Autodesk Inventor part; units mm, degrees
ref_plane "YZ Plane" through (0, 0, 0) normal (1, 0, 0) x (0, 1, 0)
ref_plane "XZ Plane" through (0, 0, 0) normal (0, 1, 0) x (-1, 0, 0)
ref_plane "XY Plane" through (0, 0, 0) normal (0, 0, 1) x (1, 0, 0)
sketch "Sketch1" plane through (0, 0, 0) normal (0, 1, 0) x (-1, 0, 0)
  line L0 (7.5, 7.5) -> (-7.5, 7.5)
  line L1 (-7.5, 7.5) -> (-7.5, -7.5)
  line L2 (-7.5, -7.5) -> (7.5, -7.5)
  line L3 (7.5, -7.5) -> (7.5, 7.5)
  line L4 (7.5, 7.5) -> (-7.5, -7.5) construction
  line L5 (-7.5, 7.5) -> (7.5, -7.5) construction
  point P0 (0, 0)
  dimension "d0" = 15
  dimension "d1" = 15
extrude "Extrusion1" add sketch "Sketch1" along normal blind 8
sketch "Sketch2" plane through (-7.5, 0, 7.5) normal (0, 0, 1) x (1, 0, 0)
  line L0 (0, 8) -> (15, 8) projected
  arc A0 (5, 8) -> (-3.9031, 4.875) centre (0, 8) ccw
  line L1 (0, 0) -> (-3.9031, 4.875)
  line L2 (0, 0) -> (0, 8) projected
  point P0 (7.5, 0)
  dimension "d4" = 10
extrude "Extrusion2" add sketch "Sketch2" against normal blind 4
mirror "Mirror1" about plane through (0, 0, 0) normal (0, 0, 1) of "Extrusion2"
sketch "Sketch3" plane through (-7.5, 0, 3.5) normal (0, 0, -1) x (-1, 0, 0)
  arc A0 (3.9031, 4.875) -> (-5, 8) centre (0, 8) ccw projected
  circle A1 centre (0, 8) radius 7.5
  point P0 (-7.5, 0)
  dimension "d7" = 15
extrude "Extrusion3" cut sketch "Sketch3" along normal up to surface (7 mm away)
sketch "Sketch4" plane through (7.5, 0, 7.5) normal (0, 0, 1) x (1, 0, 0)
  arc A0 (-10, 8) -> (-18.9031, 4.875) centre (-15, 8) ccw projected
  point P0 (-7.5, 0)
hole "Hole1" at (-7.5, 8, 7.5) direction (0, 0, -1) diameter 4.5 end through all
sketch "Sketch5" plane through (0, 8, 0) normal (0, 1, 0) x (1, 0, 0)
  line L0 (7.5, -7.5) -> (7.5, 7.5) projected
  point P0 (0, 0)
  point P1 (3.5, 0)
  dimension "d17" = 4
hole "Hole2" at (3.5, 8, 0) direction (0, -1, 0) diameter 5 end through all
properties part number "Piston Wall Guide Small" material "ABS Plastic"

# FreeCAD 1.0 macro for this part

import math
import FreeCAD as App
import Part
import Sketcher
Q = App.Units.Quantity


def add_polygon(sketch, points):
    """Adds a closed chain of lines whose ends are joined by coincident constraints."""
    first, n = sketch.GeometryCount, len(points)
    for a, b in zip(points, points[1:] + points[:1]):
        sketch.addGeometry(Part.LineSegment(App.Vector(*a, 0), App.Vector(*b, 0)), False)
    for i in range(n):
        sketch.addConstraint(Sketcher.Constraint("Coincident", first + i, 2, first + (i + 1) % n, 1))

doc = App.newDocument("Part")
body = doc.addObject("PartDesign::Body", "Body")

# Sketch on XZ plane
sketch1 = body.newObject("Sketcher::SketchObject", "Sketch")
sketch1.AttachmentSupport = (doc.getObject("XZ_Plane"), [""])
sketch1.MapMode = "FlatFace"
add_polygon(sketch1, [(-8, -8), (-8, 8), (8, 8), (8, -8)])  # lines 0-3
sketch1.addConstraint(Sketcher.Constraint("Vertical", 0))
sketch1.addConstraint(Sketcher.Constraint("Horizontal", 1))
sketch1.addConstraint(Sketcher.Constraint("Vertical", 2))
sketch1.addConstraint(Sketcher.Constraint("Horizontal", 3))
sketch1.addConstraint(Sketcher.Constraint("Symmetric", 0, 2, 2, 2, -1, 1))
sketch1.addConstraint(Sketcher.Constraint("Equal", 3, 0))
sketch1.addConstraint(Sketcher.Constraint("DistanceX", 1, 1, 1, 2, Q("15 mm")))
pad1 = body.newObject("PartDesign::Pad", "Pad")
pad1.Profile = sketch1
pad1.Length = 8
pad1.Reversed = True

# Sketch on XY plane
sketch2 = body.newObject("Sketcher::SketchObject", "Sketch001")
sketch2.AttachmentSupport = (doc.getObject("XY_Plane"), [""])
sketch2.MapMode = "FlatFace"
sketch2.AttachmentOffset = App.Placement(App.Vector(0, 0, 7.5), App.Rotation())
sketch2.addGeometry(Part.LineSegment(App.Vector(-8, 0, 0), App.Vector(-8, 8, 0)), False)
sketch2.addGeometry(Part.LineSegment(App.Vector(-8, 8, 0), App.Vector(-2, 8, 0)), False)
sketch2.addGeometry(Part.ArcOfCircle(Part.Circle(App.Vector(-8, 8, 0), App.Vector(0, 0, 1), 5), math.radians(0), math.radians(219)), False)
sketch2.addGeometry(Part.LineSegment(App.Vector(-11, 5, 0), App.Vector(-8, 0, 0)), False)
sketch2.addConstraint(Sketcher.Constraint("Coincident", 0, 2, 1, 1))
sketch2.addConstraint(Sketcher.Constraint("Coincident", 1, 2, 2, 1))
sketch2.addConstraint(Sketcher.Constraint("Tangent", 2, 2, 3, 1))
sketch2.addConstraint(Sketcher.Constraint("Coincident", 3, 2, 0, 1))
sketch2.addConstraint(Sketcher.Constraint("Vertical", 0))
sketch2.addConstraint(Sketcher.Constraint("Horizontal", 1))
sketch2.addConstraint(Sketcher.Constraint("Coincident", 0, 2, 2, 3))
sketch2.addConstraint(Sketcher.Constraint("PointOnObject", 3, 2, -1))
sketch2.addConstraint(Sketcher.Constraint("Radius", 2, Q("5 mm")))
sketch2.addConstraint(Sketcher.Constraint("DistanceY", 0, 1, 0, 2, Q("8 mm")))
sketch2.addConstraint(Sketcher.Constraint("DistanceX", 2, 3, -1, 1, Q("7.5 mm")))
pad2 = body.newObject("PartDesign::Pad", "Pad001")
pad2.Profile = sketch2
pad2.Length = 4
pad2.Reversed = True
doc.recompute()

mirrored = body.newObject("PartDesign::Mirrored", "Mirrored")
mirrored.Originals = [pad2]
mirrored.MirrorPlane = (doc.getObject("XY_Plane"), [""])
body.Tip = mirrored

# Sketch on XY plane
sketch3 = body.newObject("Sketcher::SketchObject", "Sketch002")
sketch3.AttachmentSupport = (doc.getObject("XY_Plane"), [""])
sketch3.MapMode = "FlatFace"
sketch3.AttachmentOffset = App.Placement(App.Vector(0, 0, 3.5), App.Rotation())
sketch3.addGeometry(Part.Circle(App.Vector(-8, 8, 0), App.Vector(0, 0, 1), 8), False)
sketch3.addConstraint(Sketcher.Constraint("Diameter", 0, Q("15 mm")))
sketch3.addConstraint(Sketcher.Constraint("DistanceY", -1, 1, 0, 3, Q("8 mm")))
sketch3.addConstraint(Sketcher.Constraint("DistanceX", 0, 3, -1, 1, Q("7.5 mm")))
pocket1 = body.newObject("PartDesign::Pocket", "Pocket")
pocket1.Profile = sketch3
pocket1.Length = 7

# Sketch on XY plane
sketch4 = body.newObject("Sketcher::SketchObject", "Sketch003")
sketch4.AttachmentSupport = (doc.getObject("XY_Plane"), [""])
sketch4.MapMode = "FlatFace"
sketch4.AttachmentOffset = App.Placement(App.Vector(0, 0, 7.5), App.Rotation())
sketch4.addGeometry(Part.Circle(App.Vector(-7.5, 8, 0), App.Vector(0, 0, 1), 2.2), False)
sketch4.addConstraint(Sketcher.Constraint("Diameter", 0, Q("4.5 mm")))
sketch4.addConstraint(Sketcher.Constraint("DistanceY", -1, 1, 0, 3, Q("8 mm")))
sketch4.addConstraint(Sketcher.Constraint("DistanceX", 0, 3, -1, 1, Q("7.5 mm")))
doc.recompute()
hole = body.newObject("PartDesign::Hole", "Hole")
hole.Profile = sketch4
hole.ThreadType = "None"
hole.Diameter = 4.5
hole.DepthType = "ThroughAll"

# Sketch on XZ plane
sketch5 = body.newObject("Sketcher::SketchObject", "Sketch004")
sketch5.AttachmentSupport = (doc.getObject("XZ_Plane"), [""])
sketch5.MapMode = "FlatFace"
sketch5.AttachmentOffset = App.Placement(App.Vector(0, 0, -8), App.Rotation())
sketch5.addGeometry(Part.Circle(App.Vector(3.5, 0, 0), App.Vector(0, 0, 1), 2.5), False)
sketch5.addConstraint(Sketcher.Constraint("PointOnObject", 0, 3, -1))
sketch5.addConstraint(Sketcher.Constraint("Diameter", 0, Q("5 mm")))
sketch5.addConstraint(Sketcher.Constraint("DistanceX", -1, 1, 0, 3, Q("3.5 mm")))
doc.recompute()
hole2 = body.newObject("PartDesign::Hole", "Hole001")
hole2.Profile = sketch5
hole2.ThreadType = "None"
hole2.Diameter = 5
hole2.DepthType = "ThroughAll"
hole2.Reversed = True

doc.recompute()
